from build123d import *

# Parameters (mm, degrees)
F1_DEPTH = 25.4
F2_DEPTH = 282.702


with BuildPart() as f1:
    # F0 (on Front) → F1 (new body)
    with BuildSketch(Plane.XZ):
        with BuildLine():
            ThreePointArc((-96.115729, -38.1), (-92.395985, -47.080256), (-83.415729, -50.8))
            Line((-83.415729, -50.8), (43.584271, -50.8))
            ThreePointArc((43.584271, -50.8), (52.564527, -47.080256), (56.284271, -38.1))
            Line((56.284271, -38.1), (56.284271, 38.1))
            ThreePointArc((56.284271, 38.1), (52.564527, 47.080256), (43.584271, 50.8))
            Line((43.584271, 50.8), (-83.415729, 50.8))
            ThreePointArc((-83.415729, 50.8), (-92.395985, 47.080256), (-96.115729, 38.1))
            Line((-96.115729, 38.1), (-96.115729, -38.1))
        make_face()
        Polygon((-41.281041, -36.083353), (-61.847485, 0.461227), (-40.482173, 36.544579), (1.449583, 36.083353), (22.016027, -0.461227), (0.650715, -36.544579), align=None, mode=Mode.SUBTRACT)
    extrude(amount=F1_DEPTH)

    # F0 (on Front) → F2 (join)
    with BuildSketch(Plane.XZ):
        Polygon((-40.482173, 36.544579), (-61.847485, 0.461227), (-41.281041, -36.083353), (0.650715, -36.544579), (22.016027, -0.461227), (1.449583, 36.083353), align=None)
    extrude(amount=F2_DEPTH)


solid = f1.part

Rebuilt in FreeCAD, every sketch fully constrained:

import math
import FreeCAD as App
import Part
import Sketcher
from FreeCAD import Vector
Q = App.Units.Quantity


def add_polygon(sketch, points):
    """Adds a closed chain of lines whose ends are joined by coincident constraints."""
    first, n = sketch.GeometryCount, len(points)
    for a, b in zip(points, points[1:] + points[:1]):
        sketch.addGeometry(Part.LineSegment(App.Vector(*a, 0), App.Vector(*b, 0)), False)
    for i in range(n):
        sketch.addConstraint(Sketcher.Constraint("Coincident", first + i, 2, first + (i + 1) % n, 1))

doc = App.newDocument("Part")
body = doc.addObject("PartDesign::Body", "Body")

sketch1 = doc.addObject("Sketcher::SketchObject", "Sketch")
body.addObject(sketch1)
sketch1.AttachmentSupport = (doc.XZ_Plane, [""])
sketch1.MapMode = "FlatFace"
sketch1.addGeometry(Part.ArcOfCircle(Part.Circle(Vector(-83, -38, 0), Vector(0, 0, 1), 13), math.radians(-180), math.radians(-90)), False)
sketch1.addGeometry(Part.LineSegment(Vector(-83, -51, 0), Vector(44, -51, 0)), False)
sketch1.addGeometry(Part.ArcOfCircle(Part.Circle(Vector(44, -38, 0), Vector(0, 0, 1), 13), math.radians(-90), math.radians(0)), False)
sketch1.addGeometry(Part.LineSegment(Vector(56, -38, 0), Vector(56, 38, 0)), False)
sketch1.addGeometry(Part.ArcOfCircle(Part.Circle(Vector(44, 38, 0), Vector(0, 0, 1), 13), math.radians(0), math.radians(90)), False)
sketch1.addGeometry(Part.LineSegment(Vector(44, 51, 0), Vector(-83, 51, 0)), False)
sketch1.addGeometry(Part.ArcOfCircle(Part.Circle(Vector(-83, 38, 0), Vector(0, 0, 1), 13), math.radians(90), math.radians(180)), False)
sketch1.addGeometry(Part.LineSegment(Vector(-96, 38, 0), Vector(-96, -38, 0)), False)
add_polygon(sketch1, [(1, -37), (-41, -36), (-62, 0), (-40, 37), (1, 36), (22, 0)])
sketch1.addConstraint([
    Sketcher.Constraint("Tangent", 0, 2, 1, 1),
    Sketcher.Constraint("Tangent", 1, 2, 2, 1),
    Sketcher.Constraint("Tangent", 2, 2, 3, 1),
    Sketcher.Constraint("Tangent", 3, 2, 4, 1),
    Sketcher.Constraint("Tangent", 4, 2, 5, 1),
    Sketcher.Constraint("Tangent", 5, 2, 6, 1),
    Sketcher.Constraint("Tangent", 6, 2, 7, 1),
    Sketcher.Constraint("Tangent", 7, 2, 0, 1),
    Sketcher.Constraint("Horizontal", 1),
    Sketcher.Constraint("Vertical", 3),
    Sketcher.Constraint("Horizontal", 5),
    Sketcher.Constraint("Vertical", 7),
    Sketcher.Constraint("Equal", 0, 2),
    Sketcher.Constraint("Equal", 2, 4),
    Sketcher.Constraint("Equal", 4, 6),
    Sketcher.Constraint("Parallel", 8, 11),
    Sketcher.Constraint("Parallel", 9, 12),
    Sketcher.Constraint("Parallel", 10, 13),
    Sketcher.Constraint("Equal", 8, 9),
    Sketcher.Constraint("Equal", 9, 10),
    Sketcher.Constraint("Equal", 10, 11),
    Sketcher.Constraint("Radius", 0, Q("0.5 in")),
    Sketcher.Constraint("DistanceX", 1, 1, 1, 2, Q("5 in")),
    Sketcher.Constraint("DistanceY", 3, 1, 3, 2, Q("3 in")),
    Sketcher.Constraint("DistanceY", 0, 2, -1, 1, Q("2 in")),
    Sketcher.Constraint("DistanceX", 0, 3, -1, 1, 83.415729),
    Sketcher.Constraint("DistanceX", 8, 2, -1, 1, 41.281041),
    Sketcher.Constraint("DistanceY", -1, 1, 10, 2, 36.544579),
    Sketcher.Constraint("DistanceY", 13, 2, -1, 1, 36.544579),
    Sketcher.Constraint("DistanceY", 8, 2, 9, 2, 36.54458),
    Sketcher.Constraint("DistanceX", 9, 2, 10, 2, 21.365312),
    Sketcher.Constraint("DistanceY", 9, 2, 10, 2, 36.083352),
])
pad1 = doc.addObject("PartDesign::Pad", "Pad")
body.addObject(pad1)
pad1.Profile = sketch1
pad1.Length = Q("1 in")

sketch2 = doc.addObject("Sketcher::SketchObject", "Sketch001")
body.addObject(sketch2)
sketch2.AttachmentSupport = (doc.XZ_Plane, [""])
sketch2.MapMode = "FlatFace"
add_polygon(sketch2, [(-40, 37), (-62, 0), (-41, -36), (1, -37), (22, 0), (1, 36)])
sketch2.addConstraint([
    Sketcher.Constraint("Parallel", 0, 3),
    Sketcher.Constraint("Parallel", 1, 4),
    Sketcher.Constraint("Parallel", 2, 5),
    Sketcher.Constraint("Equal", 0, 1),
    Sketcher.Constraint("Equal", 1, 2),
    Sketcher.Constraint("Equal", 2, 3),
    Sketcher.Constraint("DistanceX", 0, 2, 2, 2, 62.4982),
    Sketcher.Constraint("DistanceX", 1, 2, -1, 1, 41.281041),
    Sketcher.Constraint("DistanceY", 2, 2, -1, 1, 36.544579),
    Sketcher.Constraint("DistanceY", -1, 1, 5, 2, 36.544579),
    Sketcher.Constraint("DistanceY", 1, 2, 0, 2, 36.54458),
    Sketcher.Constraint("DistanceX", 2, 2, 3, 2, 21.365312),
])
pad2 = doc.addObject("PartDesign::Pad", "Pad001")
body.addObject(pad2)
pad2.Profile = sketch2
pad2.Length = Q("11.13 in")

doc.recompute()
